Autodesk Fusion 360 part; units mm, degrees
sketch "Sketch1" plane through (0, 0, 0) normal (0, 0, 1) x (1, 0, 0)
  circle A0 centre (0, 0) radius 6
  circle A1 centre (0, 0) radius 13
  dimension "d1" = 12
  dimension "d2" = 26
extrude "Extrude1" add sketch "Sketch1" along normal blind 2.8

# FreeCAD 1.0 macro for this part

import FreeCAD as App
import Part
import Sketcher
Q = App.Units.Quantity

doc = App.newDocument("Part")
params = doc.addObject("Spreadsheet::Sheet", "Params")
for row, (alias, value) in enumerate([
    ("sketch1_diameter", "26 mm"),
    ("sketch1_diameter2", "12 mm"),
    ("pad1_length", "2.8 mm"),
], start=1):
    params.set(f"A{row}", alias)
    params.set(f"B{row}", "=" + value)
    params.setAlias(f"B{row}", alias)

body = doc.addObject("PartDesign::Body", "Body")

sketch1 = body.newObject("Sketcher::SketchObject", "Sketch")
sketch1.AttachmentSupport = (doc.getObject("XY_Plane"), [""])
sketch1.MapMode = "FlatFace"
sketch1.addGeometry([
    Part.Circle(App.Vector(0, 0, 0), App.Vector(0, 0, 1), 13),
    Part.Circle(App.Vector(0, 0, 0), App.Vector(0, 0, 1), 6),
], False)
sketch1.addConstraint([
    Sketcher.Constraint("Coincident", 0, 3, -1, 1),
    Sketcher.Constraint("Coincident", 1, 3, -1, 1),
    Sketcher.Constraint("Diameter", 0, Q("26 mm")),
    Sketcher.Constraint("Diameter", 1, Q("12 mm")),
])
sketch1.setExpression("Constraints[2]", "Params.sketch1_diameter")
sketch1.setExpression("Constraints[3]", "Params.sketch1_diameter2")
pad1 = body.newObject("PartDesign::Pad", "Pad")
pad1.Profile = sketch1
pad1.setExpression("Length", "Params.pad1_length")

doc.recompute()
